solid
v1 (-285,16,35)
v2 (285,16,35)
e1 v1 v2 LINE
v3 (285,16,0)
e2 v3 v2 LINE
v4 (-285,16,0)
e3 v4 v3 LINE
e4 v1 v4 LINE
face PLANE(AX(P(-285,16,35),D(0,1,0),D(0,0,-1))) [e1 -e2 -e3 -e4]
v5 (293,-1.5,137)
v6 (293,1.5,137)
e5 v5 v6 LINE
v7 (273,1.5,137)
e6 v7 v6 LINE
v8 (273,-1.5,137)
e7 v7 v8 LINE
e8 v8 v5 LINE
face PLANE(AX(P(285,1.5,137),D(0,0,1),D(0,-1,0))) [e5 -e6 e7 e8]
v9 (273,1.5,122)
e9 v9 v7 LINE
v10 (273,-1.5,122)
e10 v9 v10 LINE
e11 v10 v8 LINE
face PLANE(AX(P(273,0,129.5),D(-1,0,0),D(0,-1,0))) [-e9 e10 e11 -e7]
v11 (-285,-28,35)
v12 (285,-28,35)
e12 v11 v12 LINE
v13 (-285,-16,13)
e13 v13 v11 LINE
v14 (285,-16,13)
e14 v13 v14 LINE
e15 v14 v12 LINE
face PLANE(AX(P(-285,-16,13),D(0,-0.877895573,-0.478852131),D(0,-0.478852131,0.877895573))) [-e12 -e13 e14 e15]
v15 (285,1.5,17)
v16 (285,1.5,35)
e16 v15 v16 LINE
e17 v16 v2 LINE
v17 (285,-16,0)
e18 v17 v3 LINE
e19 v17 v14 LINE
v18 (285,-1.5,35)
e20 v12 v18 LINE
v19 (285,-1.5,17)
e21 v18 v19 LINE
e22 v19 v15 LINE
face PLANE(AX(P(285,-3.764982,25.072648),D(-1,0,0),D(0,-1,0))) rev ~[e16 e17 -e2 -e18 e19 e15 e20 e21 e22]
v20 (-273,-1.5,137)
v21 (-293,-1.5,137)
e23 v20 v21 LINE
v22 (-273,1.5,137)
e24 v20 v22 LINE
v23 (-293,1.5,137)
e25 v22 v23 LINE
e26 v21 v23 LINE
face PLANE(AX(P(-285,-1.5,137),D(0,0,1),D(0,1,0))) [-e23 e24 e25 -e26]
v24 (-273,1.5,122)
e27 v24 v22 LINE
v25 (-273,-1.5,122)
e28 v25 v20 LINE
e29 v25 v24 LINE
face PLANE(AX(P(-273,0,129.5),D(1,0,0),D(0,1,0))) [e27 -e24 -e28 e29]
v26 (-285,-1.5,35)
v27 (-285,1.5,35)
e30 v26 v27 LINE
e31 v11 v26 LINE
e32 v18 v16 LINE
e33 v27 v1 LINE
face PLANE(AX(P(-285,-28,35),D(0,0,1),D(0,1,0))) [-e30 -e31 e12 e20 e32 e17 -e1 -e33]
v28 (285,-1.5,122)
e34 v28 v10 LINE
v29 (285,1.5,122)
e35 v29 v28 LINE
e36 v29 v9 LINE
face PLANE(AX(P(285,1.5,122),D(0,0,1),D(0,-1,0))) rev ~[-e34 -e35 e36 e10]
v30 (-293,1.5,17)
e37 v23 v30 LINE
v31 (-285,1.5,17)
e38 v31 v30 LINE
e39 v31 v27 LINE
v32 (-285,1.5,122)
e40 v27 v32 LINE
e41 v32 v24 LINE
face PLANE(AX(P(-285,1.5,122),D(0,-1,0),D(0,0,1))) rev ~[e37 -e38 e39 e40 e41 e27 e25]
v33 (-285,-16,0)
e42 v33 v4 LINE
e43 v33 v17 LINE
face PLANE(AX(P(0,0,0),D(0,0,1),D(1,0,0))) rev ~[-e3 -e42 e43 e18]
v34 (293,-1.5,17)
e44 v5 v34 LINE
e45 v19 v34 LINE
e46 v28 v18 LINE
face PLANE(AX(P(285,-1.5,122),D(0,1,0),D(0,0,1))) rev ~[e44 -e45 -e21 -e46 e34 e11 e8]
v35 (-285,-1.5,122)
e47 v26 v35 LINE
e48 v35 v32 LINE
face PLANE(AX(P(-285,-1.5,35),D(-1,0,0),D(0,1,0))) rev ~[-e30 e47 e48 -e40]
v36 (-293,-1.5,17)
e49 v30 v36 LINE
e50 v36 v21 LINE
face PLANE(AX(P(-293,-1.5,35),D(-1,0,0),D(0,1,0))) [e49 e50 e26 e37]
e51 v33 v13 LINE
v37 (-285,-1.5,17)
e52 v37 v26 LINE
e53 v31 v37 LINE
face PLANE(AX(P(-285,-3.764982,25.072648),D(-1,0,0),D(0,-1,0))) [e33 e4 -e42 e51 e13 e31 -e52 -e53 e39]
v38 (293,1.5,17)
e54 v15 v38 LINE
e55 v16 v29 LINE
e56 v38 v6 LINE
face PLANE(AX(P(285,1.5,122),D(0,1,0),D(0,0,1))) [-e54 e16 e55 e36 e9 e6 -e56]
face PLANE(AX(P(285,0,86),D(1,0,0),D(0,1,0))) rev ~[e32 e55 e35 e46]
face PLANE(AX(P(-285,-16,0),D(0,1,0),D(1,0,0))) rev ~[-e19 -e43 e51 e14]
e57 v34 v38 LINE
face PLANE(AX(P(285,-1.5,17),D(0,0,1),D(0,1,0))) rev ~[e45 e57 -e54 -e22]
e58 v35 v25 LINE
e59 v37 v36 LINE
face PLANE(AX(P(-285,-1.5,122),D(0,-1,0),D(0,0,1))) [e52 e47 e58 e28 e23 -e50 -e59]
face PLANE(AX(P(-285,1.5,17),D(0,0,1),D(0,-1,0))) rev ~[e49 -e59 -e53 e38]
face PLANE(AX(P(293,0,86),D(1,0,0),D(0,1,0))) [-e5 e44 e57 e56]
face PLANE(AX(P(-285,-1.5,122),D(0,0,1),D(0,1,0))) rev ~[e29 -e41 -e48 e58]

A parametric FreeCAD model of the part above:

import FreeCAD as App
import Part
import Sketcher

V = App.Vector
Q = App.Units.Quantity

doc = App.newDocument("Part")
body = doc.addObject("PartDesign::Body", "Body")

# Sketch on XY plane
sketch1 = doc.addObject("Sketcher::SketchObject", "Sketch")
body.addObject(sketch1)
sketch1.AttachmentSupport = (doc.XY_Plane, [""])
sketch1.MapMode = "FlatFace"
sketch1.addGeometry(Part.LineSegment(V(-285, 16, 0), V(-285, -16, 0)), False)
sketch1.addGeometry(Part.LineSegment(V(-285, -16, 0), V(285, -16, 0)), False)
sketch1.addGeometry(Part.LineSegment(V(285, -16, 0), V(285, 16, 0)), False)
sketch1.addGeometry(Part.LineSegment(V(285, 16, 0), V(-285, 16, 0)), False)
sketch1.addConstraint(Sketcher.Constraint("Coincident", 0, 2, 1, 1))
sketch1.addConstraint(Sketcher.Constraint("Coincident", 1, 2, 2, 1))
sketch1.addConstraint(Sketcher.Constraint("Coincident", 2, 2, 3, 1))
sketch1.addConstraint(Sketcher.Constraint("Coincident", 3, 2, 0, 1))
sketch1.addConstraint(Sketcher.Constraint("Vertical", 0))
sketch1.addConstraint(Sketcher.Constraint("Horizontal", 1))
sketch1.addConstraint(Sketcher.Constraint("Vertical", 2))
sketch1.addConstraint(Sketcher.Constraint("Horizontal", 3))
sketch1.addConstraint(Sketcher.Constraint("Symmetric", 0, 2, 2, 2, -1, 1))
sketch1.addConstraint(Sketcher.Constraint("DistanceX", 1, 1, 1, 2, Q("570 mm")))
sketch1.addConstraint(Sketcher.Constraint("DistanceY", 0, 2, 0, 1, Q("32 mm")))
pad1 = doc.addObject("PartDesign::Pad", "Pad")
body.addObject(pad1)
pad1.Profile = sketch1
pad1.Length = 13

# Sketch on YZ plane
sketch2 = doc.addObject("Sketcher::SketchObject", "Sketch001")
body.addObject(sketch2)
sketch2.AttachmentSupport = (doc.YZ_Plane, [""])
sketch2.MapMode = "FlatFace"
sketch2.AttachmentOffset = App.Placement(V(0, 0, -285), App.Rotation())
sketch2.addGeometry(Part.LineSegment(V(16, 13, 0), V(-16, 13, 0)), False)
sketch2.addGeometry(Part.LineSegment(V(-16, 13, 0), V(-28, 35, 0)), False)
sketch2.addGeometry(Part.LineSegment(V(-28, 35, 0), V(16, 35, 0)), False)
sketch2.addGeometry(Part.LineSegment(V(16, 35, 0), V(16, 13, 0)), False)
sketch2.addConstraint(Sketcher.Constraint("Coincident", 0, 2, 1, 1))
sketch2.addConstraint(Sketcher.Constraint("Coincident", 1, 2, 2, 1))
sketch2.addConstraint(Sketcher.Constraint("Coincident", 2, 2, 3, 1))
sketch2.addConstraint(Sketcher.Constraint("Coincident", 3, 2, 0, 1))
sketch2.addConstraint(Sketcher.Constraint("Horizontal", 0))
sketch2.addConstraint(Sketcher.Constraint("Horizontal", 2))
sketch2.addConstraint(Sketcher.Constraint("Vertical", 3))
sketch2.addConstraint(Sketcher.Constraint("DistanceX", 0, 2, 0, 1, Q("32 mm")))
sketch2.addConstraint(Sketcher.Constraint("DistanceX", 2, 1, 2, 2, Q("44 mm")))
sketch2.addConstraint(Sketcher.Constraint("DistanceY", 3, 2, 3, 1, Q("22 mm")))
sketch2.addConstraint(Sketcher.Constraint("DistanceX", 0, 2, -1, 1, Q("16 mm")))
sketch2.addConstraint(Sketcher.Constraint("DistanceY", -1, 1, 0, 2, Q("13 mm")))
pad2 = doc.addObject("PartDesign::Pad", "Pad001")
body.addObject(pad2)
pad2.Profile = sketch2
pad2.Length = 570

# Sketch on YZ plane
sketch3 = doc.addObject("Sketcher::SketchObject", "Sketch002")
body.addObject(sketch3)
sketch3.AttachmentSupport = (doc.YZ_Plane, [""])
sketch3.MapMode = "FlatFace"
sketch3.AttachmentOffset = App.Placement(V(0, 0, -285), App.Rotation())
sketch3.addGeometry(Part.LineSegment(V(1.5, 35, 0), V(1.5, 17, 0)), False)
sketch3.addGeometry(Part.LineSegment(V(1.5, 17, 0), V(-1.5, 17, 0)), False)
sketch3.addGeometry(Part.LineSegment(V(-1.5, 17, 0), V(-1.5, 35, 0)), False)
sketch3.addGeometry(Part.LineSegment(V(-1.5, 35, 0), V(1.5, 35, 0)), False)
sketch3.addConstraint(Sketcher.Constraint("Coincident", 0, 2, 1, 1))
sketch3.addConstraint(Sketcher.Constraint("Coincident", 1, 2, 2, 1))
sketch3.addConstraint(Sketcher.Constraint("Coincident", 2, 2, 3, 1))
sketch3.addConstraint(Sketcher.Constraint("Coincident", 3, 2, 0, 1))
sketch3.addConstraint(Sketcher.Constraint("Vertical", 0))
sketch3.addConstraint(Sketcher.Constraint("Horizontal", 1))
sketch3.addConstraint(Sketcher.Constraint("Vertical", 2))
sketch3.addConstraint(Sketcher.Constraint("Horizontal", 3))
sketch3.addConstraint(Sketcher.Constraint("DistanceX", 1, 2, 1, 1, Q("3 mm")))
sketch3.addConstraint(Sketcher.Constraint("DistanceY", 0, 2, 0, 1, Q("18 mm")))
sketch3.addConstraint(Sketcher.Constraint("DistanceY", -1, 1, 0, 2, Q("17 mm")))
sketch3.addConstraint(Sketcher.Constraint("DistanceX", -1, 1, 0, 2, Q("1.5 mm")))
pad3 = doc.addObject("PartDesign::Pad", "Pad002")
body.addObject(pad3)
pad3.Profile = sketch3
pad3.Length = 8
pad3.Reversed = True

# Sketch on XY plane
sketch4 = doc.addObject("Sketcher::SketchObject", "Sketch003")
body.addObject(sketch4)
sketch4.AttachmentSupport = (doc.XY_Plane, [""])
sketch4.MapMode = "FlatFace"
sketch4.AttachmentOffset = App.Placement(V(0, 0, 35), App.Rotation())
sketch4.addGeometry(Part.LineSegment(V(-293, 1.5, 0), V(-293, -1.5, 0)), False)
sketch4.addGeometry(Part.LineSegment(V(-293, -1.5, 0), V(-285, -1.5, 0)), False)
sketch4.addGeometry(Part.LineSegment(V(-285, -1.5, 0), V(-285, 1.5, 0)), False)
sketch4.addGeometry(Part.LineSegment(V(-285, 1.5, 0), V(-293, 1.5, 0)), False)
sketch4.addConstraint(Sketcher.Constraint("Coincident", 0, 2, 1, 1))
sketch4.addConstraint(Sketcher.Constraint("Coincident", 1, 2, 2, 1))
sketch4.addConstraint(Sketcher.Constraint("Coincident", 2, 2, 3, 1))
sketch4.addConstraint(Sketcher.Constraint("Coincident", 3, 2, 0, 1))
sketch4.addConstraint(Sketcher.Constraint("Vertical", 0))
sketch4.addConstraint(Sketcher.Constraint("Horizontal", 1))
sketch4.addConstraint(Sketcher.Constraint("Vertical", 2))
sketch4.addConstraint(Sketcher.Constraint("Horizontal", 3))
sketch4.addConstraint(Sketcher.Constraint("DistanceX", 1, 1, 1, 2, Q("8 mm")))
sketch4.addConstraint(Sketcher.Constraint("DistanceY", 0, 2, 0, 1, Q("3 mm")))
sketch4.addConstraint(Sketcher.Constraint("DistanceX", 0, 2, -1, 1, Q("293 mm")))
sketch4.addConstraint(Sketcher.Constraint("DistanceY", 0, 2, -1, 1, Q("1.5 mm")))
pad4 = doc.addObject("PartDesign::Pad", "Pad003")
body.addObject(pad4)
pad4.Profile = sketch4
pad4.Length = 102

# Sketch on YZ plane
sketch5 = doc.addObject("Sketcher::SketchObject", "Sketch004")
body.addObject(sketch5)
sketch5.AttachmentSupport = (doc.YZ_Plane, [""])
sketch5.MapMode = "FlatFace"
sketch5.AttachmentOffset = App.Placement(V(0, 0, -285), App.Rotation())
sketch5.addGeometry(Part.LineSegment(V(-1.5, 137, 0), V(-1.5, 122, 0)), False)
sketch5.addGeometry(Part.LineSegment(V(-1.5, 122, 0), V(1.5, 122, 0)), False)
sketch5.addGeometry(Part.LineSegment(V(1.5, 122, 0), V(1.5, 137, 0)), False)
sketch5.addGeometry(Part.LineSegment(V(1.5, 137, 0), V(-1.5, 137, 0)), False)
sketch5.addConstraint(Sketcher.Constraint("Coincident", 0, 2, 1, 1))
sketch5.addConstraint(Sketcher.Constraint("Coincident", 1, 2, 2, 1))
sketch5.addConstraint(Sketcher.Constraint("Coincident", 2, 2, 3, 1))
sketch5.addConstraint(Sketcher.Constraint("Coincident", 3, 2, 0, 1))
sketch5.addConstraint(Sketcher.Constraint("Vertical", 0))
sketch5.addConstraint(Sketcher.Constraint("Horizontal", 1))
sketch5.addConstraint(Sketcher.Constraint("Vertical", 2))
sketch5.addConstraint(Sketcher.Constraint("Horizontal", 3))
sketch5.addConstraint(Sketcher.Constraint("DistanceX", 1, 1, 1, 2, Q("3 mm")))
sketch5.addConstraint(Sketcher.Constraint("DistanceY", 0, 2, 0, 1, Q("15 mm")))
sketch5.addConstraint(Sketcher.Constraint("DistanceY", -1, 1, 0, 2, Q("122 mm")))
sketch5.addConstraint(Sketcher.Constraint("DistanceX", 0, 2, -1, 1, Q("1.5 mm")))
pad5 = doc.addObject("PartDesign::Pad", "Pad004")
body.addObject(pad5)
pad5.Profile = sketch5
pad5.Length = 12

# Sketch on YZ plane
sketch6 = doc.addObject("Sketcher::SketchObject", "Sketch005")
body.addObject(sketch6)
sketch6.AttachmentSupport = (doc.YZ_Plane, [""])
sketch6.MapMode = "FlatFace"
sketch6.AttachmentOffset = App.Placement(V(0, 0, 285), App.Rotation())
sketch6.addGeometry(Part.LineSegment(V(-1.5, 137, 0), V(-1.5, 17, 0)), False)
sketch6.addGeometry(Part.LineSegment(V(-1.5, 17, 0), V(1.5, 17, 0)), False)
sketch6.addGeometry(Part.LineSegment(V(1.5, 17, 0), V(1.5, 137, 0)), False)
sketch6.addGeometry(Part.LineSegment(V(1.5, 137, 0), V(-1.5, 137, 0)), False)
sketch6.addConstraint(Sketcher.Constraint("Coincident", 0, 2, 1, 1))
sketch6.addConstraint(Sketcher.Constraint("Coincident", 1, 2, 2, 1))
sketch6.addConstraint(Sketcher.Constraint("Coincident", 2, 2, 3, 1))
sketch6.addConstraint(Sketcher.Constraint("Coincident", 3, 2, 0, 1))
sketch6.addConstraint(Sketcher.Constraint("Vertical", 0))
sketch6.addConstraint(Sketcher.Constraint("Horizontal", 1))
sketch6.addConstraint(Sketcher.Constraint("Vertical", 2))
sketch6.addConstraint(Sketcher.Constraint("Horizontal", 3))
sketch6.addConstraint(Sketcher.Constraint("DistanceX", 1, 1, 1, 2, Q("3 mm")))
sketch6.addConstraint(Sketcher.Constraint("DistanceY", 0, 2, 0, 1, Q("120 mm")))
sketch6.addConstraint(Sketcher.Constraint("DistanceY", -1, 1, 0, 2, Q("17 mm")))
sketch6.addConstraint(Sketcher.Constraint("DistanceX", 0, 2, -1, 1, Q("1.5 mm")))
pad6 = doc.addObject("PartDesign::Pad", "Pad005")
body.addObject(pad6)
pad6.Profile = sketch6
pad6.Length = 8

# Sketch on YZ plane
sketch7 = doc.addObject("Sketcher::SketchObject", "Sketch006")
body.addObject(sketch7)
sketch7.AttachmentSupport = (doc.YZ_Plane, [""])
sketch7.MapMode = "FlatFace"
sketch7.AttachmentOffset = App.Placement(V(0, 0, 285), App.Rotation())
sketch7.addGeometry(Part.LineSegment(V(1.5, 137, 0), V(1.5, 122, 0)), False)
sketch7.addGeometry(Part.LineSegment(V(1.5, 122, 0), V(-1.5, 122, 0)), False)
sketch7.addGeometry(Part.LineSegment(V(-1.5, 122, 0), V(-1.5, 137, 0)), False)
sketch7.addGeometry(Part.LineSegment(V(-1.5, 137, 0), V(1.5, 137, 0)), False)
sketch7.addConstraint(Sketcher.Constraint("Coincident", 0, 2, 1, 1))
sketch7.addConstraint(Sketcher.Constraint("Coincident", 1, 2, 2, 1))
sketch7.addConstraint(Sketcher.Constraint("Coincident", 2, 2, 3, 1))
sketch7.addConstraint(Sketcher.Constraint("Coincident", 3, 2, 0, 1))
sketch7.addConstraint(Sketcher.Constraint("Vertical", 0))
sketch7.addConstraint(Sketcher.Constraint("Horizontal", 1))
sketch7.addConstraint(Sketcher.Constraint("Vertical", 2))
sketch7.addConstraint(Sketcher.Constraint("Horizontal", 3))
sketch7.addConstraint(Sketcher.Constraint("DistanceX", 1, 2, 1, 1, Q("3 mm")))
sketch7.addConstraint(Sketcher.Constraint("DistanceY", 0, 2, 0, 1, Q("15 mm")))
sketch7.addConstraint(Sketcher.Constraint("DistanceY", -1, 1, 0, 2, Q("122 mm")))
sketch7.addConstraint(Sketcher.Constraint("DistanceX", -1, 1, 0, 2, Q("1.5 mm")))
pad7 = doc.addObject("PartDesign::Pad", "Pad006")
body.addObject(pad7)
pad7.Profile = sketch7
pad7.Length = 12
pad7.Reversed = True

doc.recompute()
